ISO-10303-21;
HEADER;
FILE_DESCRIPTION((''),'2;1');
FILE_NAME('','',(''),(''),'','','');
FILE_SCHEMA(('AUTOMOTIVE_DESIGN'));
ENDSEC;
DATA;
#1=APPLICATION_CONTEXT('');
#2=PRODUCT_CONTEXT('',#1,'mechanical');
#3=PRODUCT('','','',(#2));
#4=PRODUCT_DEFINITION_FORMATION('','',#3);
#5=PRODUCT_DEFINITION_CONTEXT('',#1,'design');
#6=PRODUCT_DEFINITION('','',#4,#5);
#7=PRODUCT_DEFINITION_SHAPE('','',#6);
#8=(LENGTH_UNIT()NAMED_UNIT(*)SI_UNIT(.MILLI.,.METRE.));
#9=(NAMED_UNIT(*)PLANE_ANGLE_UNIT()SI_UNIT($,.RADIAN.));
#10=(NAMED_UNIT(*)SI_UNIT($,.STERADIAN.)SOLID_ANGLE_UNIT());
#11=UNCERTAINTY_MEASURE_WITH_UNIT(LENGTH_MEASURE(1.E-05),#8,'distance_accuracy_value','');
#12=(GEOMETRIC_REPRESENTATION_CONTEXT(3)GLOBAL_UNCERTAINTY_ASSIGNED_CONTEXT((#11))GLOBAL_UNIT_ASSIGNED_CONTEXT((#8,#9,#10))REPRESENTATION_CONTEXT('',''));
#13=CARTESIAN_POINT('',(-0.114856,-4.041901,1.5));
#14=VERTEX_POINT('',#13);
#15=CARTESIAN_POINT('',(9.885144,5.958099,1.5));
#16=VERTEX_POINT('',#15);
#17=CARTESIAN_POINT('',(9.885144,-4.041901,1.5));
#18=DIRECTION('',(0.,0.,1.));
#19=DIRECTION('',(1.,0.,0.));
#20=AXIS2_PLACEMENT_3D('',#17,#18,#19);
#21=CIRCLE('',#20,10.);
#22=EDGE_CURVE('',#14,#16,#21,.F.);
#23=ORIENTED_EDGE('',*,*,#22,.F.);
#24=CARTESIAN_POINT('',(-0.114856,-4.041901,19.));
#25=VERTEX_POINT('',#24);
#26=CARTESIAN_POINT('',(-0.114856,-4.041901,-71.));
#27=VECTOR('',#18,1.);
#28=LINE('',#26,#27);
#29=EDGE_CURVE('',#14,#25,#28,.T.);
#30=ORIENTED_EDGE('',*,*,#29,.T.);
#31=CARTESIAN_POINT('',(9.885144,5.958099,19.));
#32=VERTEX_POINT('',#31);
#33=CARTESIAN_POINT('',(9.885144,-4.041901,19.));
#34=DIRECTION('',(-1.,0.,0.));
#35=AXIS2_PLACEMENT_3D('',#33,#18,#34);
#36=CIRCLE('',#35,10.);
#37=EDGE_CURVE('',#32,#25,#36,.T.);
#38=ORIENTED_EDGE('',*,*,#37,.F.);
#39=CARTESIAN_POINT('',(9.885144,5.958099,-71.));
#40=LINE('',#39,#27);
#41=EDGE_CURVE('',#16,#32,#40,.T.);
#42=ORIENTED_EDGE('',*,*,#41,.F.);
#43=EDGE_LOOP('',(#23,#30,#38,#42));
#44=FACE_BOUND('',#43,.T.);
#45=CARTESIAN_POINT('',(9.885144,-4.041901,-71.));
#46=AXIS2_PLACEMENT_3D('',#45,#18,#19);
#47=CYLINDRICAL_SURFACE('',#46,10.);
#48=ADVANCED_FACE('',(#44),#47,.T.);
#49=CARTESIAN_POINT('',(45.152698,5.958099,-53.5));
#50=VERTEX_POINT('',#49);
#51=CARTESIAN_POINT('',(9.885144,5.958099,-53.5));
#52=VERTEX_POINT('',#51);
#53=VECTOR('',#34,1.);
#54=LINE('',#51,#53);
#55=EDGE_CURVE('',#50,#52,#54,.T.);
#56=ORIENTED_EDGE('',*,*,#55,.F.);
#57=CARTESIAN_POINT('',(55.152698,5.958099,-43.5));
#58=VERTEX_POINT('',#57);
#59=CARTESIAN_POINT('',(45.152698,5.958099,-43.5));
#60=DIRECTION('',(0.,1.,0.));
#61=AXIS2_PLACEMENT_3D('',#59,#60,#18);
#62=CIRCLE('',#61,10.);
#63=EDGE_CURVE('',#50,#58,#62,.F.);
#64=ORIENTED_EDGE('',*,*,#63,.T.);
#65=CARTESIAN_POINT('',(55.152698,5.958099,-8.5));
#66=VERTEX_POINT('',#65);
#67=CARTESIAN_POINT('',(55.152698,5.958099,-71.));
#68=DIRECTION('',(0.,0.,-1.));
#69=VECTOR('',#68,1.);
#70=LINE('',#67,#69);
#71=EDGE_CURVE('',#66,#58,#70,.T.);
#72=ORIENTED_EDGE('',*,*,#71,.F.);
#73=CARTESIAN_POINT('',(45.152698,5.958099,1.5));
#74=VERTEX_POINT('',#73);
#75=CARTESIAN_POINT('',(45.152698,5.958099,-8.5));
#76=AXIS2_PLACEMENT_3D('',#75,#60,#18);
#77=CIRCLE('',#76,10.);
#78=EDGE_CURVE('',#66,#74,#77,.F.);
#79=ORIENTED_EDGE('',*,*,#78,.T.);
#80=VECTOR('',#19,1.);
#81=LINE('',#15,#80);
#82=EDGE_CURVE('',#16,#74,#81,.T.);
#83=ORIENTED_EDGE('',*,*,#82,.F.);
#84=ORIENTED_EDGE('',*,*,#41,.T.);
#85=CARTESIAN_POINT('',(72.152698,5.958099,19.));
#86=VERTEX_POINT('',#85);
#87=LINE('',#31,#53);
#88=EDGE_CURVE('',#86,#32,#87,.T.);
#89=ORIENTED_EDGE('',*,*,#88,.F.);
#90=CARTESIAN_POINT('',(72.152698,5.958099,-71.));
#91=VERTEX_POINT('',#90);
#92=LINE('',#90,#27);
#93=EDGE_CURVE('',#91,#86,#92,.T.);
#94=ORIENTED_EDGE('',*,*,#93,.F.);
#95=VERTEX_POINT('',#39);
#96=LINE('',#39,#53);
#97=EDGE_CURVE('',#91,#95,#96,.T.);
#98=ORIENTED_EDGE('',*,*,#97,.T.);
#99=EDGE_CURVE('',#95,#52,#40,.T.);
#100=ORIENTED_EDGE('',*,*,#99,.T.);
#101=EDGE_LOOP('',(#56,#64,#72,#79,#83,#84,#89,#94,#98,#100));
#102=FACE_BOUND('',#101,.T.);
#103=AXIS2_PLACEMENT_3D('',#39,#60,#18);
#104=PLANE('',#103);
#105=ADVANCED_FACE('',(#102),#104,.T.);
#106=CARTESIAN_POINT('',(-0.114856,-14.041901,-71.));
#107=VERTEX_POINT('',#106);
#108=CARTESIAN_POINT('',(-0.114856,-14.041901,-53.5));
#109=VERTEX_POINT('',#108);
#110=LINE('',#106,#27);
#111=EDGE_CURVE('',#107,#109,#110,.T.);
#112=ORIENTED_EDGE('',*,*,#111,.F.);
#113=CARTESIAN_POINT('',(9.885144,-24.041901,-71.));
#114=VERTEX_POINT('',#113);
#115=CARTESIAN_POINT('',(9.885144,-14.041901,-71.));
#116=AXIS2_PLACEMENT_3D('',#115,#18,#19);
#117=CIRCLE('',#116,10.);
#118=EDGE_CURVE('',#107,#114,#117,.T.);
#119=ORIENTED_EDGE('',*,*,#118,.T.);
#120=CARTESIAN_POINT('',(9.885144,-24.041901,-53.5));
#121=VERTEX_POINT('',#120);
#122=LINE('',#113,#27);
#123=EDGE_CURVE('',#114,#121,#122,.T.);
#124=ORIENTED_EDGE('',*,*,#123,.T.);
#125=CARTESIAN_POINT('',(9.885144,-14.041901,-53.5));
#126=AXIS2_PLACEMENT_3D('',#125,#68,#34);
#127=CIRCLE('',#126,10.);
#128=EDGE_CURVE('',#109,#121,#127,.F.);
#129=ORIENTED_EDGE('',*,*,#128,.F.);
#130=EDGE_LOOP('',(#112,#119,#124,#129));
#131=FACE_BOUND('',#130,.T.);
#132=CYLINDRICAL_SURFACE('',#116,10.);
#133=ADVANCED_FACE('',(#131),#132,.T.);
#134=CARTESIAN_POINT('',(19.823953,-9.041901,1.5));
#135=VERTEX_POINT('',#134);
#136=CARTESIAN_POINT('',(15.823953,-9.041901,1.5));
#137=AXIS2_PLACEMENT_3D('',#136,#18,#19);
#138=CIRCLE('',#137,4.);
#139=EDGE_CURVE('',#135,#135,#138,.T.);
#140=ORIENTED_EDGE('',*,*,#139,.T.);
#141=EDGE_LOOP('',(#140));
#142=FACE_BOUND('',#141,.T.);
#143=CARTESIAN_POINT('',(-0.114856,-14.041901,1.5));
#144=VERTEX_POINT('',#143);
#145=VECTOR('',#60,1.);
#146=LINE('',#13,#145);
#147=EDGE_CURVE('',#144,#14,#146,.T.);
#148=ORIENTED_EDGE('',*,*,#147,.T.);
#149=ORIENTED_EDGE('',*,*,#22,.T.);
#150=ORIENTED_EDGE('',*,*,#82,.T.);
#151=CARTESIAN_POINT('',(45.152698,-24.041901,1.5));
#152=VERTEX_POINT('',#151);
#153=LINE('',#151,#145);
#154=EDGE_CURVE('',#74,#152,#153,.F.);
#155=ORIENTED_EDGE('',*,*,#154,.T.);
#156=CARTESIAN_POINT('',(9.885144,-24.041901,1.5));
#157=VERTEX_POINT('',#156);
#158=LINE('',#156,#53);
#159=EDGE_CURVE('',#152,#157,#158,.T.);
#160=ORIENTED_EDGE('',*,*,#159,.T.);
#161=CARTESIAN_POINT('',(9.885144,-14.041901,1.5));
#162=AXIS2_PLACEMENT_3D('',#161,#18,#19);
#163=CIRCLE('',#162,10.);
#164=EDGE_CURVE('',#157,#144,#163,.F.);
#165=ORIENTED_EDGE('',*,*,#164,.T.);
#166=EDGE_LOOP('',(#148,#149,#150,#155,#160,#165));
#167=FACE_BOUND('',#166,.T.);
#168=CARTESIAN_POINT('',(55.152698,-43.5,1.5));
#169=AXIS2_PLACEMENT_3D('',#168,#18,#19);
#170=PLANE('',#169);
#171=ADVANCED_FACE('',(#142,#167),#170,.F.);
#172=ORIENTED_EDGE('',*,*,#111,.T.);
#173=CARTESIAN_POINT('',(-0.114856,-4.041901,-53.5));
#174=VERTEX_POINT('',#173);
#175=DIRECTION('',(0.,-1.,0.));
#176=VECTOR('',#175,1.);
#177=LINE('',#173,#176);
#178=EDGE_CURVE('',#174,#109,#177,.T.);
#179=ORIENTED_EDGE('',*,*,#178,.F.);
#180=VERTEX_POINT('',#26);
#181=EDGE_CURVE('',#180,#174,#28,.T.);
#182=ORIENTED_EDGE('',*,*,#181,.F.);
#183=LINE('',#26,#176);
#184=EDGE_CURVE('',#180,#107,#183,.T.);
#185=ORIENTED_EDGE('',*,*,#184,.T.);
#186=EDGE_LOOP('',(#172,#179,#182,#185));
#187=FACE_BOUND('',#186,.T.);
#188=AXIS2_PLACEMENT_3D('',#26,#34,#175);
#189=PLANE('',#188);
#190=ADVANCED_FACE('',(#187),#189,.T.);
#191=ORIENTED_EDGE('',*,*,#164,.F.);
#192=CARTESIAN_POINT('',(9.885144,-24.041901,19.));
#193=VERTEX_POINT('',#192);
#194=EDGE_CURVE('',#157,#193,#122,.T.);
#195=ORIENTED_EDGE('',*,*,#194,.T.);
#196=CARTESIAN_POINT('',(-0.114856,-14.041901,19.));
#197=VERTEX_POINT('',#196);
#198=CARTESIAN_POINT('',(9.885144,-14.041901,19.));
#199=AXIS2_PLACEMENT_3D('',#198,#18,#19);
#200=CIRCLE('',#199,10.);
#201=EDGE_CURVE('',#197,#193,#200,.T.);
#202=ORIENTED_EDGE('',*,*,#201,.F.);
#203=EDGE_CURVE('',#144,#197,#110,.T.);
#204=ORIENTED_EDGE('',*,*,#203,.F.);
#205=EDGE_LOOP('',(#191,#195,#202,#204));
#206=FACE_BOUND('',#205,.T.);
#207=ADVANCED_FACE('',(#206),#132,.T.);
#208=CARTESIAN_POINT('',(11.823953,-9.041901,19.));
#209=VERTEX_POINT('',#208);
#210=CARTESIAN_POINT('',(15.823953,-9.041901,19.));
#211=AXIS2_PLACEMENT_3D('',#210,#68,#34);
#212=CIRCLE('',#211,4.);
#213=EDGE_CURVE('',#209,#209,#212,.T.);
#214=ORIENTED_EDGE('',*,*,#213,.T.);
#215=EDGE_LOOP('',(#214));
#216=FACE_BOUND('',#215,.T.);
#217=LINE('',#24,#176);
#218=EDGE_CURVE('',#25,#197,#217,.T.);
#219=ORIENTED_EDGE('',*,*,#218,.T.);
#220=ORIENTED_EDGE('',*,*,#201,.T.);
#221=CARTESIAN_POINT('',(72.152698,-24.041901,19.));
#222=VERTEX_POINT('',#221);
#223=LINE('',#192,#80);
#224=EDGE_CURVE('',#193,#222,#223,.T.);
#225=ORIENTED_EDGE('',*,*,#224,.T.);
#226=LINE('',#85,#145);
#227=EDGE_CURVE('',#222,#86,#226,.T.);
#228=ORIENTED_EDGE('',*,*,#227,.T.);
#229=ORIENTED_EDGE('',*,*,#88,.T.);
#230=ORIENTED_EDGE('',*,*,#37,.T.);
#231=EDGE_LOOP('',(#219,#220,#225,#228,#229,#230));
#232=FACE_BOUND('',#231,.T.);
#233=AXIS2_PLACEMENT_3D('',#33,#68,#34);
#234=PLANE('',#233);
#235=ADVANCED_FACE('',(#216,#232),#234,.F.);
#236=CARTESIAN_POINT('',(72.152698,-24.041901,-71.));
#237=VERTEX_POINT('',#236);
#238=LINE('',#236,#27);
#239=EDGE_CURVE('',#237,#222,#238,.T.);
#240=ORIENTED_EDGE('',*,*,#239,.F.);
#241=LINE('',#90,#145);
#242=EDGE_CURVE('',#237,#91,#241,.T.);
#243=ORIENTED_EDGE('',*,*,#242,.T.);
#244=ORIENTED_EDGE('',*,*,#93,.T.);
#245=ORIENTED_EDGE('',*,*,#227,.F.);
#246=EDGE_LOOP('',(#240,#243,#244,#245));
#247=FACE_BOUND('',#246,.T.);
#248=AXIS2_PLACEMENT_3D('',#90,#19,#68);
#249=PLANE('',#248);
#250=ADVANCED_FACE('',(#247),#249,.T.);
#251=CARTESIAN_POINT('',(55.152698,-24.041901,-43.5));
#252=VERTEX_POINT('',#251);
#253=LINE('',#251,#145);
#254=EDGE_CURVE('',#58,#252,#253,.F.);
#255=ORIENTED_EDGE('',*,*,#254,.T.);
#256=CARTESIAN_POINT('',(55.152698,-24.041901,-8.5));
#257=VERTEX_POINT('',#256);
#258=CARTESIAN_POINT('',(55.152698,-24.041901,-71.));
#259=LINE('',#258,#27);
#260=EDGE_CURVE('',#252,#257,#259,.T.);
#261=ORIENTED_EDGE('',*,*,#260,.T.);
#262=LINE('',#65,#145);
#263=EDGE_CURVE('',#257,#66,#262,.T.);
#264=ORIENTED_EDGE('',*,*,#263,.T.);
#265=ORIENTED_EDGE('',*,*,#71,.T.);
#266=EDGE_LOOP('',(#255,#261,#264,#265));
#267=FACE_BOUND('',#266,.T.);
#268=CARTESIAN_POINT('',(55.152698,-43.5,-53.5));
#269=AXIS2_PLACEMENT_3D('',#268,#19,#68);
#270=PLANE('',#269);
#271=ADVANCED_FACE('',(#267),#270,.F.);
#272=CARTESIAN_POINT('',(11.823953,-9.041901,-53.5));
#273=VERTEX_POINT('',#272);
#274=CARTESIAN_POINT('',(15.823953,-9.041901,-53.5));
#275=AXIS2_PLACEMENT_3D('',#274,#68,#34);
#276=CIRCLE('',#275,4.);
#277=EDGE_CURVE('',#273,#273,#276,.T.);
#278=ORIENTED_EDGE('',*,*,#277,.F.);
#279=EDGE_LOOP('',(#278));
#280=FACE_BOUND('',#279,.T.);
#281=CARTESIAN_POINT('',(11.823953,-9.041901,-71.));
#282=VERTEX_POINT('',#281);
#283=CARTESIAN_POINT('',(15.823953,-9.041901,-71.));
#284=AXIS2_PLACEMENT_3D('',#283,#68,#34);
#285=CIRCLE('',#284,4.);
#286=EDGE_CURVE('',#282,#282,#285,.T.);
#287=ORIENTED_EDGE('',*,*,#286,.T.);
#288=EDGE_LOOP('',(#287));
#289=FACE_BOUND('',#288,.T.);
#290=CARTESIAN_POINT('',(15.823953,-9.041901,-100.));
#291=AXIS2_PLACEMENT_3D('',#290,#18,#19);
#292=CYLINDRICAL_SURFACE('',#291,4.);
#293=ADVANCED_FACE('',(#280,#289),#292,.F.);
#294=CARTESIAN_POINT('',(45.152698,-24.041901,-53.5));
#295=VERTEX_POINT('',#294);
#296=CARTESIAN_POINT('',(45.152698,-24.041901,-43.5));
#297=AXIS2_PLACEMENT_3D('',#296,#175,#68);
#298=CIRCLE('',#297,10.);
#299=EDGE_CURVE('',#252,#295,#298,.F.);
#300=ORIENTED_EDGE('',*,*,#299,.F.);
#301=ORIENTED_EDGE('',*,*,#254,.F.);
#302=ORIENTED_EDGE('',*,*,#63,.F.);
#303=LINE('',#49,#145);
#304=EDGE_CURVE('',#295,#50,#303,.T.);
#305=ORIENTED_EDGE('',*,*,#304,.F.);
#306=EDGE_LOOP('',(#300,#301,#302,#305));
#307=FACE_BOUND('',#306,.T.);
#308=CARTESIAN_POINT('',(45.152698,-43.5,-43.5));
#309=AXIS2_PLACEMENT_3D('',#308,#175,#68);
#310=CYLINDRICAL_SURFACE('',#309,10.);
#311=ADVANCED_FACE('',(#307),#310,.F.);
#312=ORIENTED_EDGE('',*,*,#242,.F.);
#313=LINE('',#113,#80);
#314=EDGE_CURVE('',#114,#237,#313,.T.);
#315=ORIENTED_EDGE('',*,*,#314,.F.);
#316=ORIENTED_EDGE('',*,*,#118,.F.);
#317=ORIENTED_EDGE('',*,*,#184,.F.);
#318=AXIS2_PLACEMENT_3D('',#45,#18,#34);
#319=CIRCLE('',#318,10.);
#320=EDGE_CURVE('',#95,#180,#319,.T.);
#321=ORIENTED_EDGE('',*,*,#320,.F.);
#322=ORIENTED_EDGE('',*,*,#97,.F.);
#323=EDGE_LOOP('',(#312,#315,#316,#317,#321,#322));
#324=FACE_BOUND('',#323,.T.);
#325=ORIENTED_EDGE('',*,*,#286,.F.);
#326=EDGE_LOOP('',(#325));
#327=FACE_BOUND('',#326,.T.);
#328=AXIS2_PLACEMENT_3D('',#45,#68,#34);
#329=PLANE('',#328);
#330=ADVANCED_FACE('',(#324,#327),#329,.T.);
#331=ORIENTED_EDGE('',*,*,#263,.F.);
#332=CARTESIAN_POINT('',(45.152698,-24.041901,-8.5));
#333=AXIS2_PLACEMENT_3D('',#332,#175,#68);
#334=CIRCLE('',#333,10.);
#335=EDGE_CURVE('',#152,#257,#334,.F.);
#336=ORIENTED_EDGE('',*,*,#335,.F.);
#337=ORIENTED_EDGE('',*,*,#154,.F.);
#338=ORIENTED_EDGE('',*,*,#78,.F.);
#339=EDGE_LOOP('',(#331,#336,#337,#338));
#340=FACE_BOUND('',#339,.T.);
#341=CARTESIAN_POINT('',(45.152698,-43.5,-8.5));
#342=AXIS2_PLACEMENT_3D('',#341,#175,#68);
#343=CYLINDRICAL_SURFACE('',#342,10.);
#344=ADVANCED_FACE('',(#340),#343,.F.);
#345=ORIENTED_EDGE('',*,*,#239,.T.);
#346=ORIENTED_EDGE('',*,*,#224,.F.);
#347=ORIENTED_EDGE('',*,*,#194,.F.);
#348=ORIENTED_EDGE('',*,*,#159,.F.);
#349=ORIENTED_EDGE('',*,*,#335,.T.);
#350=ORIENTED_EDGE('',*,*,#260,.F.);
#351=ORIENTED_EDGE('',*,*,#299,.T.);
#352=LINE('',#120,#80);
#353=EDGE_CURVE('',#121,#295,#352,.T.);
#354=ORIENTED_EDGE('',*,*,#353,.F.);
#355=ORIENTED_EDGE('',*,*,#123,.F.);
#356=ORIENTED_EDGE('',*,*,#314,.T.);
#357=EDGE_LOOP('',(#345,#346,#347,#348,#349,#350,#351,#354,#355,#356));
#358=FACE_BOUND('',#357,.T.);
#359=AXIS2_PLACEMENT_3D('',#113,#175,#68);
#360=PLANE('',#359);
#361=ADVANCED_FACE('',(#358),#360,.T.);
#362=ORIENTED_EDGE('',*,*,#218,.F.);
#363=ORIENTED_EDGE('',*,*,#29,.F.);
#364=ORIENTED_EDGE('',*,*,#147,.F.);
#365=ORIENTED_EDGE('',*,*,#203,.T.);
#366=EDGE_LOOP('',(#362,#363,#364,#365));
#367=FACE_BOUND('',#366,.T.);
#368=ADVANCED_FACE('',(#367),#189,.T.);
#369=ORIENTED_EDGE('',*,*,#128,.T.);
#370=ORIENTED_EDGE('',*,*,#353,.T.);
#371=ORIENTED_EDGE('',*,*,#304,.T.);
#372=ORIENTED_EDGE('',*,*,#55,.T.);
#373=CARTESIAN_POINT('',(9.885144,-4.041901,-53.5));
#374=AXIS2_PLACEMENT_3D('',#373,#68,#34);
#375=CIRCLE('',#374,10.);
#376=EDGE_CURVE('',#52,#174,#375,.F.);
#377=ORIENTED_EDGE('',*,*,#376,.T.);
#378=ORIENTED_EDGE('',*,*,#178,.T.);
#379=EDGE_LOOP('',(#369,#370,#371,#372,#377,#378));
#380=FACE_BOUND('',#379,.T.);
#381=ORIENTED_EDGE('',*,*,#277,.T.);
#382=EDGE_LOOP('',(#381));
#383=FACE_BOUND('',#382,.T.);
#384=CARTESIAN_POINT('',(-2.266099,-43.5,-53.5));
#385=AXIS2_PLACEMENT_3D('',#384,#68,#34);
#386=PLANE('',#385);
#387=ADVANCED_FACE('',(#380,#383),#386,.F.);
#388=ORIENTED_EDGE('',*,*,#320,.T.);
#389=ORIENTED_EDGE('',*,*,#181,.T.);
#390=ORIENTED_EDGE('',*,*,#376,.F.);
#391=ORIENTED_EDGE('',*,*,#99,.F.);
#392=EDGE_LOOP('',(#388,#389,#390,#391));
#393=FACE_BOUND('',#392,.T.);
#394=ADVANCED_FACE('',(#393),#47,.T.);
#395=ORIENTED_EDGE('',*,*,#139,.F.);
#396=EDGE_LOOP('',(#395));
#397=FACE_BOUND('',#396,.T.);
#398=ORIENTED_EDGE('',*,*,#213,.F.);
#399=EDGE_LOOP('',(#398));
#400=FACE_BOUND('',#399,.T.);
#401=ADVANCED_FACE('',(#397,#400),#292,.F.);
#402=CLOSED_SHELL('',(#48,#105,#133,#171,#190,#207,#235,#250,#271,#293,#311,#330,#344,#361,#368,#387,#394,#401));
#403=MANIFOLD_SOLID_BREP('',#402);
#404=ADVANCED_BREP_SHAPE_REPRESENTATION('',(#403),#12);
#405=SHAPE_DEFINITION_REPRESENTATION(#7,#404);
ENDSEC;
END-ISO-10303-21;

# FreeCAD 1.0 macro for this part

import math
import FreeCAD as App
import Part
import Sketcher

V = App.Vector


def edges_at(feature, points):
    """Names of the edges that pass closest to the given points."""
    edges = feature.Shape.Edges
    near = lambda p: min(range(len(edges)), key=lambda i: edges[i].distToShape(Part.Vertex(*p))[0])
    return sorted({f"Edge{near(p) + 1}" for p in points})


def add_polygon(sketch, points):
    """Adds a closed chain of lines whose ends are joined by coincident constraints."""
    first, n = sketch.GeometryCount, len(points)
    for a, b in zip(points, points[1:] + points[:1]):
        sketch.addGeometry(Part.LineSegment(App.Vector(*a, 0), App.Vector(*b, 0)), False)
    for i in range(n):
        sketch.addConstraint(Sketcher.Constraint("Coincident", first + i, 2, first + (i + 1) % n, 1))

doc = App.newDocument("Part")
body = doc.addObject("PartDesign::Body", "Body")

# Sketch on XY plane
sketch1 = body.newObject("Sketcher::SketchObject", "Sketch")
sketch1.AttachmentSupport = (doc.getObject("XY_Plane"), [""])
sketch1.MapMode = "FlatFace"
sketch1.AttachmentOffset = App.Placement(V(0, 0, 19), App.Rotation())
sketch1.addGeometry(Part.LineSegment(V(0, -4, 0), V(0, -14, 0)), False)
sketch1.addGeometry(Part.ArcOfCircle(Part.Circle(V(10, -14, 0), V(0, 0, 1), 10), math.radians(180), math.radians(270)), False)
sketch1.addGeometry(Part.LineSegment(V(10, -24, 0), V(72, -24, 0)), False)
sketch1.addGeometry(Part.LineSegment(V(72, -24, 0), V(72, 6, 0)), False)
sketch1.addGeometry(Part.LineSegment(V(72, 6, 0), V(10, 6, 0)), False)
sketch1.addGeometry(Part.ArcOfCircle(Part.Circle(V(10, -4, 0), V(0, 0, 1), 10), math.radians(90), math.radians(180)), False)
sketch1.addConstraint(Sketcher.Constraint("Tangent", 0, 2, 1, 1))
sketch1.addConstraint(Sketcher.Constraint("Tangent", 1, 2, 2, 1))
sketch1.addConstraint(Sketcher.Constraint("Coincident", 2, 2, 3, 1))
sketch1.addConstraint(Sketcher.Constraint("Coincident", 3, 2, 4, 1))
sketch1.addConstraint(Sketcher.Constraint("Tangent", 4, 2, 5, 1))
sketch1.addConstraint(Sketcher.Constraint("Tangent", 5, 2, 0, 1))
sketch1.addConstraint(Sketcher.Constraint("Vertical", 0))
sketch1.addConstraint(Sketcher.Constraint("Horizontal", 2))
sketch1.addConstraint(Sketcher.Constraint("Vertical", 3))
sketch1.addConstraint(Sketcher.Constraint("Horizontal", 4))
sketch1.addConstraint(Sketcher.Constraint("Equal", 1, 5))
sketch1.addConstraint(Sketcher.Constraint("Radius", 1, 10.0))
sketch1.addConstraint(Sketcher.Constraint("DistanceY", 0, 2, 0, 1, 10.0))
sketch1.addConstraint(Sketcher.Constraint("DistanceY", 1, 3, -1, 1, 14.041901))
sketch1.addConstraint(Sketcher.Constraint("DistanceX", 2, 1, 2, 2, 62.267554))
sketch1.addConstraint(Sketcher.Constraint("DistanceX", -1, 1, 1, 3, 9.885144))
pad1 = body.newObject("PartDesign::Pad", "Pad")
pad1.Profile = sketch1
pad1.Length = 90
pad1.Reversed = True

# Sketch on XZ plane
sketch2 = body.newObject("Sketcher::SketchObject", "Sketch001")
sketch2.AttachmentSupport = (doc.getObject("XZ_Plane"), [""])
sketch2.MapMode = "FlatFace"
add_polygon(sketch2, [(-2, -54), (-2, 2), (55, 2), (55, -54)])  # lines 0-3
sketch2.addConstraint(Sketcher.Constraint("Vertical", 0))
sketch2.addConstraint(Sketcher.Constraint("Horizontal", 1))
sketch2.addConstraint(Sketcher.Constraint("Vertical", 2))
sketch2.addConstraint(Sketcher.Constraint("Horizontal", 3))
sketch2.addConstraint(Sketcher.Constraint("DistanceY", 0, 1, 0, 2, 55.0))
sketch2.addConstraint(Sketcher.Constraint("DistanceY", -1, 1, 0, 2, 1.5))
sketch2.addConstraint(Sketcher.Constraint("DistanceX", 0, 2, -1, 1, 2.266099))
sketch2.addConstraint(Sketcher.Constraint("DistanceX", 1, 1, 1, 2, 57.418797))
pocket1 = body.newObject("PartDesign::Pocket", "Pocket")
pocket1.Profile = sketch2
pocket1.Length = 87
pocket1.Midplane = True

# Sketch on XY plane
sketch3 = body.newObject("Sketcher::SketchObject", "Sketch002")
sketch3.AttachmentSupport = (doc.getObject("XY_Plane"), [""])
sketch3.MapMode = "FlatFace"
sketch3.addGeometry(Part.Circle(V(15.8, -9, 0), V(0, 0, 1), 4), False)
sketch3.addConstraint(Sketcher.Constraint("Diameter", 0, 8.0))
sketch3.addConstraint(Sketcher.Constraint("DistanceY", 0, 3, -1, 1, 9.041901))
sketch3.addConstraint(Sketcher.Constraint("DistanceX", -1, 1, 0, 3, 15.823953))
pocket2 = body.newObject("PartDesign::Pocket", "Pocket001")
pocket2.Profile = sketch3
pocket2.Length = 200
pocket2.Midplane = True
doc.recompute()

fillet = body.newObject("PartDesign::Fillet", "Fillet")
fillet.Base = (pocket2, edges_at(pocket2, [(55.153, -9.042, -53.5), (55.153, -9.042, 1.5)]))
fillet.Radius = 10

doc.recompute()
